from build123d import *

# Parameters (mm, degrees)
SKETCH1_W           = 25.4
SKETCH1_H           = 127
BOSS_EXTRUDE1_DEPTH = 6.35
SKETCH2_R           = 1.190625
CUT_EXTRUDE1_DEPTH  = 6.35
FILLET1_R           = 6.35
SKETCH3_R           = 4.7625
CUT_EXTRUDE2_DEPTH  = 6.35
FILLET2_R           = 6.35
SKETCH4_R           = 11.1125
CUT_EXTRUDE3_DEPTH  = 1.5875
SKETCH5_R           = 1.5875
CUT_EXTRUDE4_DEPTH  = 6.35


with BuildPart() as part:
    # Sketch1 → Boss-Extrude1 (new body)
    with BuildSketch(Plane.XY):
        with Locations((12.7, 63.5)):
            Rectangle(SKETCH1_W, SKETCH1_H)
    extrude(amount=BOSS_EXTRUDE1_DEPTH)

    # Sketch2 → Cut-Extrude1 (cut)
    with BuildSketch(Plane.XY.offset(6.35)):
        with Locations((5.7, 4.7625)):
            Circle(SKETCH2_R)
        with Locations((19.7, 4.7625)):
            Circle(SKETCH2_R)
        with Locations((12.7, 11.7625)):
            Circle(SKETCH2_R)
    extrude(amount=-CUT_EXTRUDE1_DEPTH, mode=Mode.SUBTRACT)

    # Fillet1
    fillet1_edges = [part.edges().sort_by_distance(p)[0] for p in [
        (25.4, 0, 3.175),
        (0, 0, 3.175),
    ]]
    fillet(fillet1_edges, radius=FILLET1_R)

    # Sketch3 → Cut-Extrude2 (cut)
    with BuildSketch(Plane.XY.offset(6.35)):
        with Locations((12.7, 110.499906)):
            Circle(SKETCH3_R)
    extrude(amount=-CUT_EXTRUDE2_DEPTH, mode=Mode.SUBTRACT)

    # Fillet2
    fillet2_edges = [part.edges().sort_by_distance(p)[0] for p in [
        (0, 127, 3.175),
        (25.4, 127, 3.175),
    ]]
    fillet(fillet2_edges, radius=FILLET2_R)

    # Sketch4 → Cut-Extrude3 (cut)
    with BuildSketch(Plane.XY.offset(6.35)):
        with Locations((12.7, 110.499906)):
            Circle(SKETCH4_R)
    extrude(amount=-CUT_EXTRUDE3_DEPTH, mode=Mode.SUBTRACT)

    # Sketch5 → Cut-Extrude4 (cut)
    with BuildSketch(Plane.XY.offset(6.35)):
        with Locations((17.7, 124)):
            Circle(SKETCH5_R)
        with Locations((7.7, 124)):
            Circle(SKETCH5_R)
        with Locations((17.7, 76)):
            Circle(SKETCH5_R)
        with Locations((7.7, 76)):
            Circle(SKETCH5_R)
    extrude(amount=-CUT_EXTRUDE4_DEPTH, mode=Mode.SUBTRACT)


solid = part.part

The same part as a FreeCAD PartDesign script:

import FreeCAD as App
import Part
import Sketcher
Q = App.Units.Quantity


def edges_at(feature, points):
    """Names of the edges that pass closest to the given points."""
    edges = feature.Shape.Edges
    near = lambda p: min(range(len(edges)), key=lambda i: edges[i].distToShape(Part.Vertex(*p))[0])
    return sorted({f"Edge{near(p) + 1}" for p in points})


def add_polygon(sketch, points):
    """Adds a closed chain of lines whose ends are joined by coincident constraints."""
    first, n = sketch.GeometryCount, len(points)
    for a, b in zip(points, points[1:] + points[:1]):
        sketch.addGeometry(Part.LineSegment(App.Vector(*a, 0), App.Vector(*b, 0)), False)
    for i in range(n):
        sketch.addConstraint(Sketcher.Constraint("Coincident", first + i, 2, first + (i + 1) % n, 1))

doc = App.newDocument("Part")
body = doc.addObject("PartDesign::Body", "Body")

# Sketch on XY plane
sketch1 = body.newObject("Sketcher::SketchObject", "Sketch")
sketch1.AttachmentSupport = (doc.getObject("XY_Plane"), [""])
sketch1.MapMode = "FlatFace"
add_polygon(sketch1, [(0, 127), (0, 0), (25, 0), (25, 127)])  # lines 0-3
sketch1.addConstraint([
    Sketcher.Constraint("Vertical", 0),
    Sketcher.Constraint("Horizontal", 1),
    Sketcher.Constraint("Vertical", 2),
    Sketcher.Constraint("Horizontal", 3),
    Sketcher.Constraint("Coincident", 0, 2, -1, 1),
    Sketcher.Constraint("DistanceX", 1, 1, 1, 2, Q("1 in")),
    Sketcher.Constraint("DistanceY", 0, 2, 0, 1, Q("5 in")),
])
pad1 = body.newObject("PartDesign::Pad", "Pad")
pad1.Profile = sketch1
pad1.Length = Q("0.25 in")

# Sketch on XY plane
sketch2 = body.newObject("Sketcher::SketchObject", "Sketch001")
sketch2.AttachmentSupport = (doc.getObject("XY_Plane"), [""])
sketch2.MapMode = "FlatFace"
sketch2.AttachmentOffset = App.Placement(App.Vector(0, 0, 0.25 * 25.4), App.Rotation())
sketch2.addGeometry([
    Part.Circle(App.Vector(5.7, 4.8, 0), App.Vector(0, 0, 1), 1.2),
    Part.Circle(App.Vector(19.7, 4.8, 0), App.Vector(0, 0, 1), 1.2),
    Part.Circle(App.Vector(12.7, 11.8, 0), App.Vector(0, 0, 1), 1.2),
], False)
sketch2.addConstraint([
    Sketcher.Constraint("Equal", 0, 1),
    Sketcher.Constraint("Equal", 1, 2),
    Sketcher.Constraint("Horizontal", 0, 3, 1, 3),
    Sketcher.Constraint("Diameter", 0, Q("0.09375 in")),
    Sketcher.Constraint("DistanceX", -1, 1, 2, 3, Q("0.5 in")),
    Sketcher.Constraint("DistanceY", -1, 1, 0, 3, Q("0.1875 in")),
    Sketcher.Constraint("DistanceX", -1, 1, 0, 3, Q("5.7 mm")),
    Sketcher.Constraint("DistanceX", -1, 1, 1, 3, Q("19.7 mm")),
    Sketcher.Constraint("DistanceY", -1, 1, 2, 3, Q("11.7625 mm")),
])
pocket1 = body.newObject("PartDesign::Pocket", "Pocket")
pocket1.Profile = sketch2
pocket1.Length = Q("0.25 in")
doc.recompute()

fillet = body.newObject("PartDesign::Fillet", "Fillet")
fillet.Base = (pocket1, edges_at(pocket1, [(25.4, 0, 3.175), (0, 0, 3.175)]))
fillet.Radius = Q("0.25 in")

# Sketch on XY plane
sketch3 = body.newObject("Sketcher::SketchObject", "Sketch002")
sketch3.AttachmentSupport = (doc.getObject("XY_Plane"), [""])
sketch3.MapMode = "FlatFace"
sketch3.AttachmentOffset = App.Placement(App.Vector(0, 0, 0.25 * 25.4), App.Rotation())
sketch3.addGeometry(Part.Circle(App.Vector(12.7, 110.5, 0), App.Vector(0, 0, 1), 4.8), False)
sketch3.addConstraint([
    Sketcher.Constraint("Diameter", 0, Q("0.375 in")),
    Sketcher.Constraint("DistanceX", -1, 1, 0, 3, Q("0.5 in")),
    Sketcher.Constraint("DistanceY", -1, 1, 0, 3, Q("110.499906 mm")),
])
pocket2 = body.newObject("PartDesign::Pocket", "Pocket001")
pocket2.Profile = sketch3
pocket2.Length = Q("0.25 in")
doc.recompute()

fillet2 = body.newObject("PartDesign::Fillet", "Fillet001")
fillet2.Base = (pocket2, edges_at(pocket2, [(0, 127, 3.175), (25.4, 127, 3.175)]))
fillet2.Radius = Q("0.25 in")

# Sketch on XY plane
sketch4 = body.newObject("Sketcher::SketchObject", "Sketch003")
sketch4.AttachmentSupport = (doc.getObject("XY_Plane"), [""])
sketch4.MapMode = "FlatFace"
sketch4.AttachmentOffset = App.Placement(App.Vector(0, 0, 0.25 * 25.4), App.Rotation())
sketch4.addGeometry(Part.Circle(App.Vector(13, 110, 0), App.Vector(0, 0, 1), 11), False)
sketch4.addConstraint([
    Sketcher.Constraint("Diameter", 0, Q("0.875 in")),
    Sketcher.Constraint("DistanceX", -1, 1, 0, 3, Q("0.5 in")),
    Sketcher.Constraint("DistanceY", -1, 1, 0, 3, Q("110.499906 mm")),
])
pocket3 = body.newObject("PartDesign::Pocket", "Pocket002")
pocket3.Profile = sketch4
pocket3.Length = Q("0.0625 in")

# Sketch on XY plane
sketch5 = body.newObject("Sketcher::SketchObject", "Sketch004")
sketch5.AttachmentSupport = (doc.getObject("XY_Plane"), [""])
sketch5.MapMode = "FlatFace"
sketch5.AttachmentOffset = App.Placement(App.Vector(0, 0, 0.25 * 25.4), App.Rotation())
sketch5.addGeometry([
    Part.Circle(App.Vector(17.7, 124, 0), App.Vector(0, 0, 1), 1.6),
    Part.Circle(App.Vector(7.7, 124, 0), App.Vector(0, 0, 1), 1.6),
    Part.Circle(App.Vector(17.7, 76, 0), App.Vector(0, 0, 1), 1.6),
    Part.Circle(App.Vector(7.7, 76, 0), App.Vector(0, 0, 1), 1.6),
], False)
sketch5.addConstraint([
    Sketcher.Constraint("Equal", 0, 1),
    Sketcher.Constraint("Equal", 1, 2),
    Sketcher.Constraint("Equal", 2, 3),
    Sketcher.Constraint("Horizontal", 0, 3, 1, 3),
    Sketcher.Constraint("Horizontal", 2, 3, 3, 3),
    Sketcher.Constraint("Vertical", 0, 3, 2, 3),
    Sketcher.Constraint("Vertical", 1, 3, 3, 3),
    Sketcher.Constraint("Diameter", 0, Q("0.125 in")),
    Sketcher.Constraint("DistanceX", -1, 1, 0, 3, Q("17.7 mm")),
    Sketcher.Constraint("DistanceY", -1, 1, 0, 3, Q("124 mm")),
    Sketcher.Constraint("DistanceX", -1, 1, 1, 3, Q("7.7 mm")),
    Sketcher.Constraint("DistanceY", -1, 1, 2, 3, Q("76 mm")),
])
pocket4 = body.newObject("PartDesign::Pocket", "Pocket003")
pocket4.Profile = sketch5
pocket4.Length = Q("0.25 in")

doc.recompute()
